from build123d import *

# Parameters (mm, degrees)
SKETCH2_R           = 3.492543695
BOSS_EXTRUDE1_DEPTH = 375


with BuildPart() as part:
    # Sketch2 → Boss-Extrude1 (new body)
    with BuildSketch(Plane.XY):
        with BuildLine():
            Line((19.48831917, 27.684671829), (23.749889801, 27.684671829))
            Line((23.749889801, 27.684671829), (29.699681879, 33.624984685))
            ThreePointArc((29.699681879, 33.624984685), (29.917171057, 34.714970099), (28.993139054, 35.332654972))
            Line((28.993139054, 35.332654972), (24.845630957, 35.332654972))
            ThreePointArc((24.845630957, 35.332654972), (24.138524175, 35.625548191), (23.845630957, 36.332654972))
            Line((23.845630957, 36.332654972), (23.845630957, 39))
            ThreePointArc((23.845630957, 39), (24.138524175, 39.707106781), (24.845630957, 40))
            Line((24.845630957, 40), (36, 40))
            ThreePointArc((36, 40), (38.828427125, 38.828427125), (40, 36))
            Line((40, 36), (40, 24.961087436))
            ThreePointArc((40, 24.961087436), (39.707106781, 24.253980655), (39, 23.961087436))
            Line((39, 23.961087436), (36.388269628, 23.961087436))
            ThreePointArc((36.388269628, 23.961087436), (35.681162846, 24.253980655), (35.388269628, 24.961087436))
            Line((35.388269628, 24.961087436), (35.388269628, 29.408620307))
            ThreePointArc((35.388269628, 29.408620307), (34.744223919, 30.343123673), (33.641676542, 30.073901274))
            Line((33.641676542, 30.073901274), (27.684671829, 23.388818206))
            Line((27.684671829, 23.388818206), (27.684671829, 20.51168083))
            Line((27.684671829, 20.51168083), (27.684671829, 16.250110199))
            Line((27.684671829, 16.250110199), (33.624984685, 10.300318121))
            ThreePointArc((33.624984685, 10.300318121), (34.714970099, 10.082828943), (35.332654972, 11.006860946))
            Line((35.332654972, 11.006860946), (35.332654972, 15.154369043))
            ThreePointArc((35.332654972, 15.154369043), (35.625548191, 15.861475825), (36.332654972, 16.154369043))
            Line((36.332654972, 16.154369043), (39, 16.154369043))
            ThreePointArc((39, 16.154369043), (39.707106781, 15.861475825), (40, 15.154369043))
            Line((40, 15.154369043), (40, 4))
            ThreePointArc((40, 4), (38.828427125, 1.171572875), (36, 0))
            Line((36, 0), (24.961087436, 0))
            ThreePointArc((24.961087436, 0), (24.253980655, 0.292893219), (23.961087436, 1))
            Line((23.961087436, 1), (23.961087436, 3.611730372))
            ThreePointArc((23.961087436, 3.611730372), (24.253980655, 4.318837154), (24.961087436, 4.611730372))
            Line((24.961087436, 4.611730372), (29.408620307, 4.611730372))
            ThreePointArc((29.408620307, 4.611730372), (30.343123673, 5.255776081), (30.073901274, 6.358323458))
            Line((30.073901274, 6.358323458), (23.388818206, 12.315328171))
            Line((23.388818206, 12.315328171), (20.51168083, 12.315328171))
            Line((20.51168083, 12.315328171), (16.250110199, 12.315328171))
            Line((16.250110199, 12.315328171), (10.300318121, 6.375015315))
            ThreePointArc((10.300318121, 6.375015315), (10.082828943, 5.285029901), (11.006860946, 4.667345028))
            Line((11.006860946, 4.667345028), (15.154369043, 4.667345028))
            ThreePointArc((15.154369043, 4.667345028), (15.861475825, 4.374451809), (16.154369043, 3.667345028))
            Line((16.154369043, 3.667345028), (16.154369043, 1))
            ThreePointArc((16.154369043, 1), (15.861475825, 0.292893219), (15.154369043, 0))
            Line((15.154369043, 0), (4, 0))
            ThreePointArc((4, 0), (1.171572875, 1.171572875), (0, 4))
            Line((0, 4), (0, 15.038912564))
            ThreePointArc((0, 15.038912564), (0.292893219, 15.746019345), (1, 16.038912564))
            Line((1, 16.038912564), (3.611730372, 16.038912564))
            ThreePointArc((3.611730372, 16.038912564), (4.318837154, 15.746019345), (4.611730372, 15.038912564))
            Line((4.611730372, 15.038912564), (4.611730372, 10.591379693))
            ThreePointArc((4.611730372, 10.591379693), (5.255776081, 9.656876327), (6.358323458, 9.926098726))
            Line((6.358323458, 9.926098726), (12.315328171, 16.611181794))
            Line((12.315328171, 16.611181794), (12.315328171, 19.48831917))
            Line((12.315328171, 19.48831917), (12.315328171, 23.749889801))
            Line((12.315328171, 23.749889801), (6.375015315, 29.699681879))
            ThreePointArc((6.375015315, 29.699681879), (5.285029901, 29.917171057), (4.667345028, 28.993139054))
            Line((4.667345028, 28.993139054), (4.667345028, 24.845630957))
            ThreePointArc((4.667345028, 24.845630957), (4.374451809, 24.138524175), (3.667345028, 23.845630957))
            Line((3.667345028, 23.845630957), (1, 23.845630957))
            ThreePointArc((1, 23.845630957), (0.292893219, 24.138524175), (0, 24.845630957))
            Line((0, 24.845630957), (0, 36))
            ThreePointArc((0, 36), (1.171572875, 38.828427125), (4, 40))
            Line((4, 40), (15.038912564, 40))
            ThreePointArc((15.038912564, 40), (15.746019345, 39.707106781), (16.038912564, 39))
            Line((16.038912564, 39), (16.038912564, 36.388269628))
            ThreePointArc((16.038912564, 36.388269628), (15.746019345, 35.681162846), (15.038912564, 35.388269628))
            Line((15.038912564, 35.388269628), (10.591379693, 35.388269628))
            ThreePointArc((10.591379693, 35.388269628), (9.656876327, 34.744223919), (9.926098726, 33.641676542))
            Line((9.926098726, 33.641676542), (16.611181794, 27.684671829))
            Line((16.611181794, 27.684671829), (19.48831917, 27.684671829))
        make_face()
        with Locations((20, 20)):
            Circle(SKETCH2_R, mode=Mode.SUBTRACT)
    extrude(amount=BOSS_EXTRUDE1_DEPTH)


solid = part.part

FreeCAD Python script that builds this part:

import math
import FreeCAD as App
import Part
import Sketcher

V = App.Vector
Q = App.Units.Quantity

doc = App.newDocument("Part")
body = doc.addObject("PartDesign::Body", "Body")

sketch1 = body.newObject("Sketcher::SketchObject", "Sketch")
sketch1.AttachmentSupport = (doc.getObject("XY_Plane"), [""])
sketch1.MapMode = "FlatFace"
sketch1.addGeometry([
    Part.LineSegment(V(29.699682, 33.624985, 0), V(23.74989, 27.684672, 0)),
    Part.LineSegment(V(23.74989, 27.684672, 0), V(16.611182, 27.684672, 0)),
    Part.LineSegment(V(16.611182, 27.684672, 0), V(9.926099, 33.641677, 0)),
    Part.ArcOfCircle(Part.Circle(V(10.59138, 34.38827, 0), V(0, 0, 1), 1), math.radians(90), math.radians(228.296116)),
    Part.LineSegment(V(10.59138, 35.38827, 0), V(15.038913, 35.38827, 0)),
    Part.ArcOfCircle(Part.Circle(V(15.038913, 36.38827, 0), V(0, 0, 1), 1), math.radians(-90), math.radians(0)),
    Part.LineSegment(V(16.038913, 36.38827, 0), V(16.038913, 39, 0)),
    Part.ArcOfCircle(Part.Circle(V(15.038913, 39, 0), V(0, 0, 1), 1), math.radians(0), math.radians(90)),
    Part.LineSegment(V(15.038913, 40, 0), V(4, 40, 0)),
    Part.ArcOfCircle(Part.Circle(V(4, 36, 0), V(0, 0, 1), 4), math.radians(90), math.radians(180)),
    Part.LineSegment(V(0, 36, 0), V(0, 24.845631, 0)),
    Part.ArcOfCircle(Part.Circle(V(1, 24.845631, 0), V(0, 0, 1), 1), math.radians(180), math.radians(270)),
    Part.LineSegment(V(1, 23.845631, 0), V(3.667345, 23.845631, 0)),
    Part.ArcOfCircle(Part.Circle(V(3.667345, 24.845631, 0), V(0, 0, 1), 1), math.radians(-90), math.radians(0)),
    Part.LineSegment(V(4.667345, 24.845631, 0), V(4.667345, 28.993139, 0)),
    Part.ArcOfCircle(Part.Circle(V(5.667345, 28.993139, 0), V(0, 0, 1), 1), math.radians(44.954322), math.radians(180)),
    Part.LineSegment(V(6.375015, 29.699682, 0), V(12.315328, 23.74989, 0)),
    Part.LineSegment(V(12.315328, 23.74989, 0), V(12.315328, 16.611182, 0)),
    Part.LineSegment(V(12.315328, 16.611182, 0), V(6.358323, 9.926099, 0)),
    Part.ArcOfCircle(Part.Circle(V(5.61173, 10.59138, 0), V(0, 0, 1), 1), math.radians(-180), math.radians(-41.703884)),
    Part.LineSegment(V(4.61173, 10.59138, 0), V(4.61173, 15.038913, 0)),
    Part.ArcOfCircle(Part.Circle(V(3.61173, 15.038913, 0), V(0, 0, 1), 1), math.radians(0), math.radians(90)),
    Part.LineSegment(V(3.61173, 16.038913, 0), V(1, 16.038913, 0)),
    Part.ArcOfCircle(Part.Circle(V(1, 15.038913, 0), V(0, 0, 1), 1), math.radians(90), math.radians(180)),
    Part.LineSegment(V(0, 15.038913, 0), V(0, 4, 0)),
    Part.ArcOfCircle(Part.Circle(V(4, 4, 0), V(0, 0, 1), 4), math.radians(180), math.radians(270)),
    Part.LineSegment(V(4, 0, 0), V(15.154369, 0, 0)),
    Part.ArcOfCircle(Part.Circle(V(15.154369, 1, 0), V(0, 0, 1), 1), math.radians(-90), math.radians(0)),
    Part.LineSegment(V(16.154369, 1, 0), V(16.154369, 3.667345, 0)),
    Part.ArcOfCircle(Part.Circle(V(15.154369, 3.667345, 0), V(0, 0, 1), 1), math.radians(0), math.radians(90)),
    Part.LineSegment(V(15.154369, 4.667345, 0), V(11.006861, 4.667345, 0)),
    Part.ArcOfCircle(Part.Circle(V(11.006861, 5.667345, 0), V(0, 0, 1), 1), math.radians(134.954322), math.radians(270)),
    Part.LineSegment(V(10.300318, 6.375015, 0), V(16.25011, 12.315328, 0)),
    Part.LineSegment(V(16.25011, 12.315328, 0), V(23.388818, 12.315328, 0)),
    Part.LineSegment(V(23.388818, 12.315328, 0), V(30.073901, 6.358323, 0)),
    Part.ArcOfCircle(Part.Circle(V(29.40862, 5.61173, 0), V(0, 0, 1), 1), math.radians(-90), math.radians(48.296116)),
    Part.LineSegment(V(29.40862, 4.61173, 0), V(24.961087, 4.61173, 0)),
    Part.ArcOfCircle(Part.Circle(V(24.961087, 3.61173, 0), V(0, 0, 1), 1), math.radians(90), math.radians(180)),
    Part.LineSegment(V(23.961087, 3.61173, 0), V(23.961087, 1, 0)),
    Part.ArcOfCircle(Part.Circle(V(24.961087, 1, 0), V(0, 0, 1), 1), math.radians(-180), math.radians(-90)),
    Part.LineSegment(V(24.961087, 0, 0), V(36, 0, 0)),
    Part.ArcOfCircle(Part.Circle(V(36, 4, 0), V(0, 0, 1), 4), math.radians(-90), math.radians(0)),
    Part.LineSegment(V(40, 4, 0), V(40, 15.154369, 0)),
    Part.ArcOfCircle(Part.Circle(V(39, 15.154369, 0), V(0, 0, 1), 1), math.radians(0), math.radians(90)),
    Part.LineSegment(V(39, 16.154369, 0), V(36.332655, 16.154369, 0)),
    Part.ArcOfCircle(Part.Circle(V(36.332655, 15.154369, 0), V(0, 0, 1), 1), math.radians(90), math.radians(180)),
    Part.LineSegment(V(35.332655, 15.154369, 0), V(35.332655, 11.006861, 0)),
    Part.ArcOfCircle(Part.Circle(V(34.332655, 11.006861, 0), V(0, 0, 1), 1), math.radians(-135.045678), math.radians(0)),
    Part.LineSegment(V(33.624985, 10.300318, 0), V(27.684672, 16.25011, 0)),
    Part.LineSegment(V(27.684672, 16.25011, 0), V(27.684672, 23.388818, 0)),
    Part.LineSegment(V(27.684672, 23.388818, 0), V(33.641677, 30.073901, 0)),
    Part.ArcOfCircle(Part.Circle(V(34.38827, 29.40862, 0), V(0, 0, 1), 1), math.radians(0), math.radians(138.296116)),
    Part.LineSegment(V(35.38827, 29.40862, 0), V(35.38827, 24.961087, 0)),
    Part.ArcOfCircle(Part.Circle(V(36.38827, 24.961087, 0), V(0, 0, 1), 1), math.radians(180), math.radians(270)),
    Part.LineSegment(V(36.38827, 23.961087, 0), V(39, 23.961087, 0)),
    Part.ArcOfCircle(Part.Circle(V(39, 24.961087, 0), V(0, 0, 1), 1), math.radians(-90), math.radians(0)),
    Part.LineSegment(V(40, 24.961087, 0), V(40, 36, 0)),
    Part.ArcOfCircle(Part.Circle(V(36, 36, 0), V(0, 0, 1), 4), math.radians(0), math.radians(90)),
    Part.LineSegment(V(36, 40, 0), V(24.845631, 40, 0)),
    Part.ArcOfCircle(Part.Circle(V(24.845631, 39, 0), V(0, 0, 1), 1), math.radians(90), math.radians(180)),
    Part.LineSegment(V(23.845631, 39, 0), V(23.845631, 36.332655, 0)),
    Part.ArcOfCircle(Part.Circle(V(24.845631, 36.332655, 0), V(0, 0, 1), 1), math.radians(180), math.radians(270)),
    Part.LineSegment(V(24.845631, 35.332655, 0), V(28.993139, 35.332655, 0)),
    Part.ArcOfCircle(Part.Circle(V(28.993139, 34.332655, 0), V(0, 0, 1), 1), math.radians(-45.045678), math.radians(90)),
    Part.Circle(V(20, 20, 0), V(0, 0, 1), 3.492544),
], False)
sketch1.addConstraint([
    Sketcher.Constraint("Coincident", 0, 2, 1, 1),
    Sketcher.Constraint("Coincident", 1, 2, 2, 1),
    Sketcher.Constraint("Tangent", 2, 2, 3, 2),
    Sketcher.Constraint("Tangent", 3, 1, 4, 1),
    Sketcher.Constraint("Tangent", 4, 2, 5, 1),
    Sketcher.Constraint("Tangent", 5, 2, 6, 1),
    Sketcher.Constraint("Tangent", 6, 2, 7, 1),
    Sketcher.Constraint("Tangent", 7, 2, 8, 1),
    Sketcher.Constraint("Tangent", 8, 2, 9, 1),
    Sketcher.Constraint("Tangent", 9, 2, 10, 1),
    Sketcher.Constraint("Tangent", 10, 2, 11, 1),
    Sketcher.Constraint("Tangent", 11, 2, 12, 1),
    Sketcher.Constraint("Tangent", 12, 2, 13, 1),
    Sketcher.Constraint("Tangent", 13, 2, 14, 1),
    Sketcher.Constraint("Tangent", 14, 2, 15, 2),
    Sketcher.Constraint("Tangent", 15, 1, 16, 1),
    Sketcher.Constraint("Coincident", 16, 2, 17, 1),
    Sketcher.Constraint("Coincident", 17, 2, 18, 1),
    Sketcher.Constraint("Tangent", 18, 2, 19, 2),
    Sketcher.Constraint("Tangent", 19, 1, 20, 1),
    Sketcher.Constraint("Tangent", 20, 2, 21, 1),
    Sketcher.Constraint("Tangent", 21, 2, 22, 1),
    Sketcher.Constraint("Tangent", 22, 2, 23, 1),
    Sketcher.Constraint("Tangent", 23, 2, 24, 1),
    Sketcher.Constraint("Tangent", 24, 2, 25, 1),
    Sketcher.Constraint("Tangent", 25, 2, 26, 1),
    Sketcher.Constraint("Tangent", 26, 2, 27, 1),
    Sketcher.Constraint("Tangent", 27, 2, 28, 1),
    Sketcher.Constraint("Tangent", 28, 2, 29, 1),
    Sketcher.Constraint("Tangent", 29, 2, 30, 1),
    Sketcher.Constraint("Tangent", 30, 2, 31, 2),
    Sketcher.Constraint("Tangent", 31, 1, 32, 1),
    Sketcher.Constraint("Coincident", 32, 2, 33, 1),
    Sketcher.Constraint("Coincident", 33, 2, 34, 1),
    Sketcher.Constraint("Tangent", 34, 2, 35, 2),
    Sketcher.Constraint("Tangent", 35, 1, 36, 1),
    Sketcher.Constraint("Tangent", 36, 2, 37, 1),
    Sketcher.Constraint("Tangent", 37, 2, 38, 1),
    Sketcher.Constraint("Tangent", 38, 2, 39, 1),
    Sketcher.Constraint("Tangent", 39, 2, 40, 1),
    Sketcher.Constraint("Tangent", 40, 2, 41, 1),
    Sketcher.Constraint("Tangent", 41, 2, 42, 1),
    Sketcher.Constraint("Tangent", 42, 2, 43, 1),
    Sketcher.Constraint("Tangent", 43, 2, 44, 1),
    Sketcher.Constraint("Tangent", 44, 2, 45, 1),
    Sketcher.Constraint("Tangent", 45, 2, 46, 1),
    Sketcher.Constraint("Tangent", 46, 2, 47, 2),
    Sketcher.Constraint("Tangent", 47, 1, 48, 1),
    Sketcher.Constraint("Coincident", 48, 2, 49, 1),
    Sketcher.Constraint("Coincident", 49, 2, 50, 1),
    Sketcher.Constraint("Tangent", 50, 2, 51, 2),
    Sketcher.Constraint("Tangent", 51, 1, 52, 1),
    Sketcher.Constraint("Tangent", 52, 2, 53, 1),
    Sketcher.Constraint("Tangent", 53, 2, 54, 1),
    Sketcher.Constraint("Tangent", 54, 2, 55, 1),
    Sketcher.Constraint("Tangent", 55, 2, 56, 1),
    Sketcher.Constraint("Tangent", 56, 2, 57, 1),
    Sketcher.Constraint("Tangent", 57, 2, 58, 1),
    Sketcher.Constraint("Tangent", 58, 2, 59, 1),
    Sketcher.Constraint("Tangent", 59, 2, 60, 1),
    Sketcher.Constraint("Tangent", 60, 2, 61, 1),
    Sketcher.Constraint("Tangent", 61, 2, 62, 1),
    Sketcher.Constraint("Tangent", 62, 2, 63, 2),
    Sketcher.Constraint("Tangent", 63, 1, 0, 1),
    Sketcher.Constraint("Horizontal", 1),
    Sketcher.Constraint("Horizontal", 4),
    Sketcher.Constraint("Vertical", 6),
    Sketcher.Constraint("Horizontal", 8),
    Sketcher.Constraint("Vertical", 10),
    Sketcher.Constraint("Horizontal", 12),
    Sketcher.Constraint("Vertical", 14),
    Sketcher.Constraint("Vertical", 17),
    Sketcher.Constraint("Vertical", 20),
    Sketcher.Constraint("Horizontal", 22),
    Sketcher.Constraint("Vertical", 24),
    Sketcher.Constraint("Horizontal", 26),
    Sketcher.Constraint("Vertical", 28),
    Sketcher.Constraint("Horizontal", 30),
    Sketcher.Constraint("Horizontal", 33),
    Sketcher.Constraint("Horizontal", 36),
    Sketcher.Constraint("Vertical", 38),
    Sketcher.Constraint("Horizontal", 40),
    Sketcher.Constraint("Vertical", 42),
    Sketcher.Constraint("Horizontal", 44),
    Sketcher.Constraint("Vertical", 46),
    Sketcher.Constraint("Vertical", 49),
    Sketcher.Constraint("Vertical", 52),
    Sketcher.Constraint("Horizontal", 54),
    Sketcher.Constraint("Vertical", 56),
    Sketcher.Constraint("Horizontal", 58),
    Sketcher.Constraint("Vertical", 60),
    Sketcher.Constraint("Horizontal", 62),
    Sketcher.Constraint("Equal", 3, 5),
    Sketcher.Constraint("Equal", 5, 7),
    Sketcher.Constraint("Equal", 7, 11),
    Sketcher.Constraint("Equal", 11, 13),
    Sketcher.Constraint("Equal", 13, 15),
    Sketcher.Constraint("Equal", 15, 19),
    Sketcher.Constraint("Equal", 19, 21),
    Sketcher.Constraint("Equal", 21, 23),
    Sketcher.Constraint("Equal", 9, 25),
    Sketcher.Constraint("Equal", 23, 27),
    Sketcher.Constraint("Equal", 27, 29),
    Sketcher.Constraint("Equal", 29, 31),
    Sketcher.Constraint("Equal", 31, 35),
    Sketcher.Constraint("Equal", 35, 37),
    Sketcher.Constraint("Equal", 37, 39),
    Sketcher.Constraint("Equal", 25, 41),
    Sketcher.Constraint("Equal", 39, 43),
    Sketcher.Constraint("Equal", 43, 45),
    Sketcher.Constraint("Equal", 45, 47),
    Sketcher.Constraint("Equal", 47, 51),
    Sketcher.Constraint("Equal", 51, 53),
    Sketcher.Constraint("Equal", 53, 55),
    Sketcher.Constraint("Equal", 41, 57),
    Sketcher.Constraint("Equal", 55, 59),
    Sketcher.Constraint("Equal", 59, 61),
    Sketcher.Constraint("Equal", 61, 63),
    Sketcher.Constraint("PointOnObject", 9, 2, -2),
    Sketcher.Constraint("PointOnObject", 23, 2, -2),
    Sketcher.Constraint("PointOnObject", 25, 2, -1),
    Sketcher.Constraint("PointOnObject", 39, 2, -1),
    Sketcher.Constraint("Perpendicular", 0, 16),
    Sketcher.Constraint("Perpendicular", 2, 18),
    Sketcher.Constraint("Perpendicular", 16, 32),
    Sketcher.Constraint("Perpendicular", 18, 34),
    Sketcher.Constraint("Perpendicular", 32, 48),
    Sketcher.Constraint("Perpendicular", 34, 50),
    Sketcher.Constraint("Horizontal", 9, 3, 57, 3),
    Sketcher.Constraint("Vertical", 43, 3, 55, 3),
    Sketcher.Constraint("Equal", 1, 33),
    Sketcher.Constraint("Equal", 4, 36),
    Sketcher.Constraint("Equal", 8, 40),
    Sketcher.Constraint("Equal", 12, 44),
    Sketcher.Constraint("Equal", 22, 54),
    Sketcher.Constraint("Equal", 26, 58),
    Sketcher.Constraint("Equal", 30, 62),
    Sketcher.Constraint("Equal", 54, 6),
    Sketcher.Constraint("Equal", 58, 10),
    Sketcher.Constraint("Equal", 62, 14),
    Sketcher.Constraint("Equal", 33, 17),
    Sketcher.Constraint("Equal", 36, 20),
    Sketcher.Constraint("Equal", 40, 24),
    Sketcher.Constraint("Equal", 44, 28),
    Sketcher.Constraint("Equal", 6, 38),
    Sketcher.Constraint("Equal", 10, 42),
    Sketcher.Constraint("Equal", 14, 46),
    Sketcher.Constraint("Equal", 17, 49),
    Sketcher.Constraint("Equal", 20, 52),
    Sketcher.Constraint("Equal", 24, 56),
    Sketcher.Constraint("Equal", 28, 60),
    Sketcher.Constraint("Equal", 0, 16),
    Sketcher.Constraint("Radius", 3, Q("1 mm")),
    Sketcher.Constraint("Radius", 9, Q("4 mm")),
    Sketcher.Constraint("DistanceY", -1, 1, 7, 3, Q("39 mm")),
    Sketcher.Constraint("DistanceX", -1, 1, 64, 3, Q("20 mm")),
    Sketcher.Constraint("DistanceY", -1, 1, 64, 3, Q("20 mm")),
    Sketcher.Constraint("Diameter", 64, Q("6.985087 mm")),
    Sketcher.Constraint("DistanceX", 1, 2, 1, 1, Q("7.138708 mm")),
    Sketcher.Constraint("DistanceX", 22, 2, 22, 1, Q("2.61173 mm")),
    Sketcher.Constraint("DistanceX", 26, 1, 26, 2, Q("11.154369 mm")),
    Sketcher.Constraint("DistanceX", 30, 2, 30, 1, Q("4.147508 mm")),
    Sketcher.Constraint("DistanceX", -1, 1, 2, 2, Q("9.926099 mm")),
    Sketcher.Constraint("Distance", 2, Q("8.954119 mm")),
    Sketcher.Constraint("DistanceX", 4, 1, 4, 2, Q("4.447533 mm")),
    Sketcher.Constraint("DistanceX", 8, 2, 8, 1, Q("11.038913 mm")),
    Sketcher.Constraint("DistanceX", 12, 1, 12, 2, Q("2.667345 mm")),
])
pad1 = body.newObject("PartDesign::Pad", "Pad")
pad1.Profile = sketch1
pad1.Length = 375

doc.recompute()
